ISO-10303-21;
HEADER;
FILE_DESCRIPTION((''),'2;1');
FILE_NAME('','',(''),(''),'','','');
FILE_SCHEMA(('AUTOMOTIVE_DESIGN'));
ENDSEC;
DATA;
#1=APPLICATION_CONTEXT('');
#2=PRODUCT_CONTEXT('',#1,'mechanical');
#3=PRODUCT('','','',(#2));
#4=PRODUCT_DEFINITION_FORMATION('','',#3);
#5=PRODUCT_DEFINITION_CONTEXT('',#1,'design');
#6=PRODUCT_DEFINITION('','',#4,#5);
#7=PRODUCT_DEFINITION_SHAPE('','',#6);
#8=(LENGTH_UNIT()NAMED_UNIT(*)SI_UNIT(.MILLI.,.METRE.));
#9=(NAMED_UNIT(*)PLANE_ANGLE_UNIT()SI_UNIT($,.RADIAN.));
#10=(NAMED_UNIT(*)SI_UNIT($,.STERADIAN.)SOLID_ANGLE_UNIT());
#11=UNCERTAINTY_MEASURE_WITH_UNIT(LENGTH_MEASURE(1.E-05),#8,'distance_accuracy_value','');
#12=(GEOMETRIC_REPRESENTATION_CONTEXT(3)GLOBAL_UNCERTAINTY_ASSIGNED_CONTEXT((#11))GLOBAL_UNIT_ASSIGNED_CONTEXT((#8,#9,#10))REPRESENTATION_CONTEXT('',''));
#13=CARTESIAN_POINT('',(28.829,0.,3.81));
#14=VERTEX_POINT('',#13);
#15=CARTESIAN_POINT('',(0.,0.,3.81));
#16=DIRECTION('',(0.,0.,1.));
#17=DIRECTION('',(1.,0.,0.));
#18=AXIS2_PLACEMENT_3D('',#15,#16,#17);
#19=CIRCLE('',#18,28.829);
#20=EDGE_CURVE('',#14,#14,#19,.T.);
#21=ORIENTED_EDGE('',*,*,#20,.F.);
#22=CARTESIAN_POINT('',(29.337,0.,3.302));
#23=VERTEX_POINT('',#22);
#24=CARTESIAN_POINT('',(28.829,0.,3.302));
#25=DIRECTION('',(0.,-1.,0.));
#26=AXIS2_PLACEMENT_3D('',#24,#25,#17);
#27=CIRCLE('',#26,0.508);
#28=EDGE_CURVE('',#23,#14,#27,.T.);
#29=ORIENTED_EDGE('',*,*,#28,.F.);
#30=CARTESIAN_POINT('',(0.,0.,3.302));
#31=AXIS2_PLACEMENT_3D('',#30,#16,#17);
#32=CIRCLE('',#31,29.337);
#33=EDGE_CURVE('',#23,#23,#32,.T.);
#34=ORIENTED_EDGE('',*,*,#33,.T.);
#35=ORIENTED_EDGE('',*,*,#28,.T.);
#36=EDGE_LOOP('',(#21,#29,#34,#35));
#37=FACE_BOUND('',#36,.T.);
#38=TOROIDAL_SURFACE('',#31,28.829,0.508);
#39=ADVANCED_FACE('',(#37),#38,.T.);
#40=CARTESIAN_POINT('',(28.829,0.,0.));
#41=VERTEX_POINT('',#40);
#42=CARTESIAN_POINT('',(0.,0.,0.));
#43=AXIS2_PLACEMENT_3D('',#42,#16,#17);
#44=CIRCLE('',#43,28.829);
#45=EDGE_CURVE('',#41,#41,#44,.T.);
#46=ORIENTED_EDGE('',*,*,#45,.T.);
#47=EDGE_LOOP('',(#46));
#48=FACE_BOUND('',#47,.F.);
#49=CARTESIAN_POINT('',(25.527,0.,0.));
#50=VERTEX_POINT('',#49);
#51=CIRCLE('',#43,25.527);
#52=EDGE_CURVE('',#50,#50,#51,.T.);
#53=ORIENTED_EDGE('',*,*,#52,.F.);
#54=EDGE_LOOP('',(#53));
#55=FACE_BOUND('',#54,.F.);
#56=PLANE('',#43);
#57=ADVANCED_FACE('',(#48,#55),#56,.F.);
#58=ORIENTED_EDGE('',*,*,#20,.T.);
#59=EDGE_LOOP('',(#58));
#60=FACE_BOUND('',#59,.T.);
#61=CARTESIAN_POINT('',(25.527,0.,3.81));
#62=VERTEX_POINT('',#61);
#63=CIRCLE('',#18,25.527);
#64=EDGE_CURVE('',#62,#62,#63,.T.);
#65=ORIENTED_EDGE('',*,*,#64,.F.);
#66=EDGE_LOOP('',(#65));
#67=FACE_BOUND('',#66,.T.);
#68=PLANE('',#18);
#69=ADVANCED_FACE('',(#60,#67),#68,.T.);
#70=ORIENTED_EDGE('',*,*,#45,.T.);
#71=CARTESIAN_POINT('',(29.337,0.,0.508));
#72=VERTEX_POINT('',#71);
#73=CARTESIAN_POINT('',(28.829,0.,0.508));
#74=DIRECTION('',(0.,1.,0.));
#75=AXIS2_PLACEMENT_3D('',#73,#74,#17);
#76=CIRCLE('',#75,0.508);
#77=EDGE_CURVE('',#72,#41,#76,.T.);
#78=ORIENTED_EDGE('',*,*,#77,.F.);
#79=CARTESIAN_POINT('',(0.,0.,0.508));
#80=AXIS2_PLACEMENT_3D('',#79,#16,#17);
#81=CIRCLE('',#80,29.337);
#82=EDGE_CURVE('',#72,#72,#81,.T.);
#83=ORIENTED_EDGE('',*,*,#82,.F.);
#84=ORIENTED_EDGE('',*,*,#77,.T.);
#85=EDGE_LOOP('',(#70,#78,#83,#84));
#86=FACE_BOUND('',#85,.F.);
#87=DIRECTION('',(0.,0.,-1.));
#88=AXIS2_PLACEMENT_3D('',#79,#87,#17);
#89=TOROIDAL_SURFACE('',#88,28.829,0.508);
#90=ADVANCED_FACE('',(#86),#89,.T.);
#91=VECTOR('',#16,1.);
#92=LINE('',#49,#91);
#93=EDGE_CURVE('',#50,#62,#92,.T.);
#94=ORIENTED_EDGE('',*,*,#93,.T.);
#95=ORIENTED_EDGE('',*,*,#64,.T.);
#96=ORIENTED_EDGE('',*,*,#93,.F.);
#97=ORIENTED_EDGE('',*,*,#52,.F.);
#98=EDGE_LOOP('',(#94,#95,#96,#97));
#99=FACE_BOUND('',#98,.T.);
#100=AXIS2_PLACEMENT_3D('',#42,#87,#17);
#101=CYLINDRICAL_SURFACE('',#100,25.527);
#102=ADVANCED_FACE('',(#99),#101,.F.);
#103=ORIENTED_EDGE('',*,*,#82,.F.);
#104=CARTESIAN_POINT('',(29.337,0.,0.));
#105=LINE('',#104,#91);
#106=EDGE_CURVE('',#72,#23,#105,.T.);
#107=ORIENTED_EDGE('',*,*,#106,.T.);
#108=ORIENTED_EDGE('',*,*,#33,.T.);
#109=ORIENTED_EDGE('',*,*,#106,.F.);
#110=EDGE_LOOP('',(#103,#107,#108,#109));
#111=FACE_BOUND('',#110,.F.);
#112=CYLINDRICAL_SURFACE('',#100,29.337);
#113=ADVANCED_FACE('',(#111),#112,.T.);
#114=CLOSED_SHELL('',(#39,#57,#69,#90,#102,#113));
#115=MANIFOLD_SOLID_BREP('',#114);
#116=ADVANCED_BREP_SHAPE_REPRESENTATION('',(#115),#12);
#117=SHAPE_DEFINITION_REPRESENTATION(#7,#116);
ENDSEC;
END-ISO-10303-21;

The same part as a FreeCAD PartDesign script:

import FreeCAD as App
import Part
import Sketcher

V = App.Vector
Q = App.Units.Quantity


def edges_at(feature, points):
    """Names of the edges that pass closest to the given points."""
    edges = feature.Shape.Edges
    near = lambda p: min(range(len(edges)), key=lambda i: edges[i].distToShape(Part.Vertex(*p))[0])
    return sorted({f"Edge{near(p) + 1}" for p in points})

doc = App.newDocument("Part")
body = doc.addObject("PartDesign::Body", "Body")

sketch1 = body.newObject("Sketcher::SketchObject", "Sketch")
sketch1.AttachmentSupport = (doc.getObject("XY_Plane"), [""])
sketch1.MapMode = "FlatFace"
sketch1.addGeometry([
    Part.Circle(V(0, 0, 0), V(0, 0, 1), 29),
    Part.Circle(V(0, 0, 0), V(0, 0, 1), 26),
], False)
sketch1.addConstraint([
    Sketcher.Constraint("Coincident", 0, 3, -1, 1),
    Sketcher.Constraint("Coincident", 1, 3, -1, 1),
    Sketcher.Constraint("Diameter", 0, Q("2.31 in")),
    Sketcher.Constraint("Diameter", 1, Q("2.01 in")),
])
pad1 = body.newObject("PartDesign::Pad", "Pad")
pad1.Profile = sketch1
pad1.Length = Q("0.15 in")
doc.recompute()

fillet = body.newObject("PartDesign::Fillet", "Fillet")
fillet.Base = (pad1, edges_at(pad1, [(-29.337, 0, 3.81)]))
fillet.Radius = Q("0.02 in")
doc.recompute()

fillet2 = body.newObject("PartDesign::Fillet", "Fillet001")
fillet2.Base = (fillet, edges_at(fillet, [(-29.337, 0, 0)]))
fillet2.Radius = Q("0.02 in")

doc.recompute()
